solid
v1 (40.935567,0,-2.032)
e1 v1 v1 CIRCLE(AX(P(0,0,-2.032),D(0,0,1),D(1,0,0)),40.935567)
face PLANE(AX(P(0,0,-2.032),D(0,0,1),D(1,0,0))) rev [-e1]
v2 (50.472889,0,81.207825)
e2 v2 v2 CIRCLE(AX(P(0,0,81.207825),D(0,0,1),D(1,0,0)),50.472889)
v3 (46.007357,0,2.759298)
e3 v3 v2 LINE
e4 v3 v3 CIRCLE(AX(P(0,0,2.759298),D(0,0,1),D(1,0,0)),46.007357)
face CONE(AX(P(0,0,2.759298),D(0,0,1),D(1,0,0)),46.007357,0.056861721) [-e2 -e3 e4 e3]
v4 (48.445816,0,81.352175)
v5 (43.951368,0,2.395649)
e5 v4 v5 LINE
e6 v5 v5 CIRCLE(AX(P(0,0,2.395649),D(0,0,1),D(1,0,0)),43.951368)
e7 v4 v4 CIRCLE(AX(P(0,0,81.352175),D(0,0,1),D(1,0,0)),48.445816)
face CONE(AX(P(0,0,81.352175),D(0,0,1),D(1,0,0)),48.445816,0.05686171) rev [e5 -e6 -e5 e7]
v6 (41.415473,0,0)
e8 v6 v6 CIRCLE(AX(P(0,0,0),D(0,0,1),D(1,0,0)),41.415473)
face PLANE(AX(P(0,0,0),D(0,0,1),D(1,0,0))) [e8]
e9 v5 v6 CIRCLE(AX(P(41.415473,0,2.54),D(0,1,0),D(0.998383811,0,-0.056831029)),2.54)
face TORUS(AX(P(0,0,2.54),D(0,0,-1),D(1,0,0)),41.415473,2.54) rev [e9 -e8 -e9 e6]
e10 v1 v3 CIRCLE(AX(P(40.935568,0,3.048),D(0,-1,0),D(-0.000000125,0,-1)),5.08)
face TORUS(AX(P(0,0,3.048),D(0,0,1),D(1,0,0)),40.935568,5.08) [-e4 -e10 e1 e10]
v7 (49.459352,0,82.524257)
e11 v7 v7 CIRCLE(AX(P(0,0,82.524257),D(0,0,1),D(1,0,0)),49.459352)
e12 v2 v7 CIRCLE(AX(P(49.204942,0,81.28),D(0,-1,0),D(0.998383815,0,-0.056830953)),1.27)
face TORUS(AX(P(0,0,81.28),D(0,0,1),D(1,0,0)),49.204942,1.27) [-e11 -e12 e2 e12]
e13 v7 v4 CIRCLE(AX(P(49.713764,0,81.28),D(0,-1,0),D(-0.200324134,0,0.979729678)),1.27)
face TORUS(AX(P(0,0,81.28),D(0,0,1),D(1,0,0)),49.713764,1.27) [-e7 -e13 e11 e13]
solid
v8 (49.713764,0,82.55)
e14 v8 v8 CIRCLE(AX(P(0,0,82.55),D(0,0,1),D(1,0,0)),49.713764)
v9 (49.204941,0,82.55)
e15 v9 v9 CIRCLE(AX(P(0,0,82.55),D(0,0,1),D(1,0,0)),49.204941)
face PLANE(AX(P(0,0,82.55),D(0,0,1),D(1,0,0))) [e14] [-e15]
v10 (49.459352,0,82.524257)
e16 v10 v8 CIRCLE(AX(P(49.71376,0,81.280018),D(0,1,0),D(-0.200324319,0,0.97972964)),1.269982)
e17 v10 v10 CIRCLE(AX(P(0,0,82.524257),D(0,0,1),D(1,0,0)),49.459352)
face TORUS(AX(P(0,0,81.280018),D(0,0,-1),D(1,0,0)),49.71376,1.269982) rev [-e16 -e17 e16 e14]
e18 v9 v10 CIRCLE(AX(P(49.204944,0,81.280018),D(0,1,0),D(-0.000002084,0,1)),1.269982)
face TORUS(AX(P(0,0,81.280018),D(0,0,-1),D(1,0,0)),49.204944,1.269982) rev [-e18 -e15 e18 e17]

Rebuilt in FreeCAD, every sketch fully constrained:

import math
import FreeCAD as App
import Part
import Sketcher
from FreeCAD import Vector
Q = App.Units.Quantity

doc = App.newDocument("Part")
params = doc.addObject("Spreadsheet::Sheet", "Params")
for row, (alias, value) in enumerate([
    ("sketch1_radius", "0.2 in"),
    ("sketch1_radius2", "0.1 in"),
    ("sketch1_radius3", "0.05 in"),
    ("sketch1_height", "0.08 in"),
    ("revolution_angle", "360 deg"),
], start=1):
    params.set(f"A{row}", alias)
    params.set(f"B{row}", "=" + value)
    params.setAlias(f"B{row}", alias)

body = doc.addObject("PartDesign::Body", "Body")
body.AllowCompound = True

# Sketch on XZ plane
sketch1 = body.newObject("Sketcher::SketchObject", "Sketch")
sketch1.AttachmentSupport = (doc.getObject("XZ_Plane"), [""])
sketch1.MapMode = "FlatFace"
sketch1.addGeometry(Part.ArcOfCircle(Part.Circle(Vector(49.2, 81.28, 0), Vector(0, 0, 1), 1.27), math.radians(78.44), math.radians(90)), False)
sketch1.addGeometry(Part.ArcOfCircle(Part.Circle(Vector(49.71, 81.28, 0), Vector(0, 0, 1), 1.27), math.radians(90), math.radians(101.56)), False)
sketch1.addGeometry(Part.LineSegment(Vector(49.71, 82.55, 0), Vector(49.2, 82.55, 0)), False)
sketch1.addGeometry(Part.LineSegment(Vector(41.42, 0, 0), Vector(0, 0, 0)), False)
sketch1.addGeometry(Part.LineSegment(Vector(0, 0, 0), Vector(0, -2.03, 0)), False)
sketch1.addGeometry(Part.LineSegment(Vector(0, -2.03, 0), Vector(40.94, -2.03, 0)), False)
sketch1.addGeometry(Part.ArcOfCircle(Part.Circle(Vector(40.94, 3.05, 0), Vector(0, 0, 1), 5.08), math.radians(-90), math.radians(-3)), False)
sketch1.addGeometry(Part.LineSegment(Vector(46.01, 2.76, 0), Vector(50.47, 81.21, 0)), False)
sketch1.addGeometry(Part.ArcOfCircle(Part.Circle(Vector(49.2, 81.28, 0), Vector(0, 0, 1), 1.27), math.radians(-3), math.radians(78)), False)
sketch1.addGeometry(Part.ArcOfCircle(Part.Circle(Vector(49.71, 81.28, 0), Vector(0, 0, 1), 1.27), math.radians(102), math.radians(177)), False)
sketch1.addGeometry(Part.LineSegment(Vector(48.45, 81.35, 0), Vector(43.95, 2.4, 0)), False)
sketch1.addGeometry(Part.ArcOfCircle(Part.Circle(Vector(41.42, 2.54, 0), Vector(0, 0, 1), 2.54), math.radians(-90), math.radians(-3)), False)
sketch1.addConstraint(Sketcher.Constraint("Coincident", 0, 1, 1, 2))
sketch1.addConstraint(Sketcher.Constraint("Coincident", 1, 1, 2, 1))
sketch1.addConstraint(Sketcher.Constraint("Coincident", 2, 2, 0, 2))
sketch1.addConstraint(Sketcher.Constraint("Coincident", 3, 2, 4, 1))
sketch1.addConstraint(Sketcher.Constraint("Coincident", 4, 2, 5, 1))
sketch1.addConstraint(Sketcher.Constraint("Tangent", 5, 2, 6, 1))
sketch1.addConstraint(Sketcher.Constraint("Tangent", 6, 2, 7, 1))
sketch1.addConstraint(Sketcher.Constraint("Tangent", 7, 2, 8, 1))
sketch1.addConstraint(Sketcher.Constraint("Coincident", 8, 2, 9, 1))
sketch1.addConstraint(Sketcher.Constraint("Tangent", 9, 2, 10, 1))
sketch1.addConstraint(Sketcher.Constraint("Tangent", 10, 2, 11, 2))
sketch1.addConstraint(Sketcher.Constraint("Tangent", 11, 1, 3, 1))
sketch1.addConstraint(Sketcher.Constraint("Horizontal", 2))
sketch1.addConstraint(Sketcher.Constraint("Horizontal", 3))
sketch1.addConstraint(Sketcher.Constraint("Vertical", 4))
sketch1.addConstraint(Sketcher.Constraint("Horizontal", 5))
sketch1.addConstraint(Sketcher.Constraint("Coincident", 3, 2, -1, 1))
sketch1.addConstraint(Sketcher.Constraint("Coincident", 8, 2, 0, 1))
sketch1.addConstraint(Sketcher.Constraint("Equal", 0, 1))
sketch1.addConstraint(Sketcher.Constraint("Equal", 8, 9))
sketch1.addConstraint(Sketcher.Constraint("Parallel", 7, 10))
sketch1.addConstraint(Sketcher.Constraint("Horizontal", 8, 3, 9, 3))
sketch1.addConstraint(Sketcher.Constraint("Vertical", 0, 3, 8, 3))
sketch1.addConstraint(Sketcher.Constraint("Vertical", 9, 3, 1, 1))
sketch1.addConstraint(Sketcher.Constraint("Vertical", 8, 3, 2, 2))
sketch1.addConstraint(Sketcher.Constraint("Radius", 6, Q("0.2 in")))
sketch1.addConstraint(Sketcher.Constraint("Radius", 11, Q("0.1 in")))
sketch1.addConstraint(Sketcher.Constraint("Radius", 8, Q("0.05 in")))
sketch1.addConstraint(Sketcher.Constraint("DistanceY", 4, 2, 4, 1, Q("0.08 in")))
sketch1.addConstraint(Sketcher.Constraint("DistanceY", -1, 1, 8, 3, Q("3.2 in")))
sketch1.addConstraint(Sketcher.Constraint("DistanceY", -1, 1, 1, 1, Q("3.25 in")))
sketch1.addConstraint(Sketcher.Constraint("DistanceY", -1, 1, 6, 2, 2.759298))
sketch1.addConstraint(Sketcher.Constraint("DistanceX", 6, 3, 10, 2, 3.0158))
sketch1.addConstraint(Sketcher.Constraint("DistanceX", 3, 2, 3, 1, 41.415473))
sketch1.setExpression("Constraints[25]", "Params.sketch1_radius")
sketch1.setExpression("Constraints[26]", "Params.sketch1_radius2")
sketch1.setExpression("Constraints[27]", "Params.sketch1_radius3")
sketch1.setExpression("Constraints[28]", "Params.sketch1_height")
revolution = body.newObject("PartDesign::Revolution", "Revolution")
revolution.Profile = sketch1
revolution.ReferenceAxis = (sketch1, ["V_Axis"])
revolution.setExpression("Angle", "Params.revolution_angle")

doc.recompute()
